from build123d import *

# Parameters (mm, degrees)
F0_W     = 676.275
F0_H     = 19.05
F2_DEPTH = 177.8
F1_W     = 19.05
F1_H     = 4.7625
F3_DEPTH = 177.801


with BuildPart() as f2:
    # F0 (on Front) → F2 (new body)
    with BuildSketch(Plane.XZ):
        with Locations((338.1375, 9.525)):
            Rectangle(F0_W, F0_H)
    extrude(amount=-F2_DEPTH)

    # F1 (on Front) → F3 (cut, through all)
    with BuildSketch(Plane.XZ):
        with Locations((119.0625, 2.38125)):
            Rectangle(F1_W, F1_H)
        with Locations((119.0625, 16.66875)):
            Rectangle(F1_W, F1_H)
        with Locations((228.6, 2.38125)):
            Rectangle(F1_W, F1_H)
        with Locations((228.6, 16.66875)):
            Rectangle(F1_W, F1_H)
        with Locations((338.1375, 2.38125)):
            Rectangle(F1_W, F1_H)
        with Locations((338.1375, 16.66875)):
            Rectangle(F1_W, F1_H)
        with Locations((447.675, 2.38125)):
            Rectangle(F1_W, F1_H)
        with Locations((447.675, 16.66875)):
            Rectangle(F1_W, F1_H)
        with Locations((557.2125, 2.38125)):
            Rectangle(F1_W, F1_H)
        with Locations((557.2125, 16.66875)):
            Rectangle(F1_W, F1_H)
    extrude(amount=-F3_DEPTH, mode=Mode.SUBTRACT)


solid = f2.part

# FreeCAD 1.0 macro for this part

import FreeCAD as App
import Part
import Sketcher
Q = App.Units.Quantity


def add_polygon(sketch, points):
    """Adds a closed chain of lines whose ends are joined by coincident constraints."""
    first, n = sketch.GeometryCount, len(points)
    for a, b in zip(points, points[1:] + points[:1]):
        sketch.addGeometry(Part.LineSegment(App.Vector(*a, 0), App.Vector(*b, 0)), False)
    for i in range(n):
        sketch.addConstraint(Sketcher.Constraint("Coincident", first + i, 2, first + (i + 1) % n, 1))

doc = App.newDocument("Part")
body = doc.addObject("PartDesign::Body", "Body")

sketch1 = doc.addObject("Sketcher::SketchObject", "Sketch")
body.addObject(sketch1)
sketch1.AttachmentSupport = (doc.XZ_Plane, [""])
sketch1.MapMode = "FlatFace"
add_polygon(sketch1, [(0, 19), (0, 0), (676, 0), (676, 19)])
sketch1.addConstraint(Sketcher.Constraint("Vertical", 0))
sketch1.addConstraint(Sketcher.Constraint("Horizontal", 1))
sketch1.addConstraint(Sketcher.Constraint("Vertical", 2))
sketch1.addConstraint(Sketcher.Constraint("Horizontal", 3))
sketch1.addConstraint(Sketcher.Constraint("Coincident", 0, 2, -1, 1))
sketch1.addConstraint(Sketcher.Constraint("DistanceY", 0, 2, 0, 1, Q("0.75 in")))
sketch1.addConstraint(Sketcher.Constraint("DistanceX", 1, 1, 1, 2, Q("26.625 in")))
pad1 = doc.addObject("PartDesign::Pad", "Pad")
body.addObject(pad1)
pad1.Profile = sketch1
pad1.Length = Q("7 in")
pad1.Reversed = True

sketch2 = doc.addObject("Sketcher::SketchObject", "Sketch001")
body.addObject(sketch2)
sketch2.AttachmentSupport = (doc.XZ_Plane, [""])
sketch2.MapMode = "FlatFace"
add_polygon(sketch2, [(109.5, 4.8), (109.5, 0), (128.6, 0), (128.6, 4.8)])
add_polygon(sketch2, [(109.5, 19.1), (109.5, 14.3), (128.6, 14.3), (128.6, 19.1)])
add_polygon(sketch2, [(219.1, 4.8), (219.1, 0), (238.1, 0), (238.1, 4.8)])
add_polygon(sketch2, [(219.1, 19.1), (219.1, 14.3), (238.1, 14.3), (238.1, 19.1)])
add_polygon(sketch2, [(328.6, 4.8), (328.6, 0), (347.7, 0), (347.7, 4.8)])
add_polygon(sketch2, [(328.6, 19.1), (328.6, 14.3), (347.7, 14.3), (347.7, 19.1)])
add_polygon(sketch2, [(438.1, 4.8), (438.1, 0), (457.2, 0), (457.2, 4.8)])
add_polygon(sketch2, [(438.1, 19.1), (438.1, 14.3), (457.2, 14.3), (457.2, 19.1)])
add_polygon(sketch2, [(547.7, 4.8), (547.7, 0), (566.7, 0), (566.7, 4.8)])
add_polygon(sketch2, [(547.7, 19.1), (547.7, 14.3), (566.7, 14.3), (566.7, 19.1)])
sketch2.addConstraint(Sketcher.Constraint("Vertical", 0))
sketch2.addConstraint(Sketcher.Constraint("Horizontal", 1))
sketch2.addConstraint(Sketcher.Constraint("Vertical", 2))
sketch2.addConstraint(Sketcher.Constraint("Horizontal", 3))
sketch2.addConstraint(Sketcher.Constraint("Vertical", 4))
sketch2.addConstraint(Sketcher.Constraint("Horizontal", 5))
sketch2.addConstraint(Sketcher.Constraint("Vertical", 6))
sketch2.addConstraint(Sketcher.Constraint("Horizontal", 7))
sketch2.addConstraint(Sketcher.Constraint("Vertical", 8))
sketch2.addConstraint(Sketcher.Constraint("Horizontal", 9))
sketch2.addConstraint(Sketcher.Constraint("Vertical", 10))
sketch2.addConstraint(Sketcher.Constraint("Horizontal", 11))
sketch2.addConstraint(Sketcher.Constraint("Vertical", 12))
sketch2.addConstraint(Sketcher.Constraint("Horizontal", 13))
sketch2.addConstraint(Sketcher.Constraint("Vertical", 14))
sketch2.addConstraint(Sketcher.Constraint("Horizontal", 15))
sketch2.addConstraint(Sketcher.Constraint("Vertical", 16))
sketch2.addConstraint(Sketcher.Constraint("Horizontal", 17))
sketch2.addConstraint(Sketcher.Constraint("Vertical", 18))
sketch2.addConstraint(Sketcher.Constraint("Horizontal", 19))
sketch2.addConstraint(Sketcher.Constraint("Vertical", 20))
sketch2.addConstraint(Sketcher.Constraint("Horizontal", 21))
sketch2.addConstraint(Sketcher.Constraint("Vertical", 22))
sketch2.addConstraint(Sketcher.Constraint("Horizontal", 23))
sketch2.addConstraint(Sketcher.Constraint("Vertical", 24))
sketch2.addConstraint(Sketcher.Constraint("Horizontal", 25))
sketch2.addConstraint(Sketcher.Constraint("Vertical", 26))
sketch2.addConstraint(Sketcher.Constraint("Horizontal", 27))
sketch2.addConstraint(Sketcher.Constraint("Vertical", 28))
sketch2.addConstraint(Sketcher.Constraint("Horizontal", 29))
sketch2.addConstraint(Sketcher.Constraint("Vertical", 30))
sketch2.addConstraint(Sketcher.Constraint("Horizontal", 31))
sketch2.addConstraint(Sketcher.Constraint("Vertical", 32))
sketch2.addConstraint(Sketcher.Constraint("Horizontal", 33))
sketch2.addConstraint(Sketcher.Constraint("Vertical", 34))
sketch2.addConstraint(Sketcher.Constraint("Horizontal", 35))
sketch2.addConstraint(Sketcher.Constraint("Vertical", 36))
sketch2.addConstraint(Sketcher.Constraint("Horizontal", 37))
sketch2.addConstraint(Sketcher.Constraint("Vertical", 38))
sketch2.addConstraint(Sketcher.Constraint("Horizontal", 39))
sketch2.addConstraint(Sketcher.Constraint("PointOnObject", 0, 2, -1))
sketch2.addConstraint(Sketcher.Constraint("PointOnObject", 8, 2, -1))
sketch2.addConstraint(Sketcher.Constraint("PointOnObject", 16, 2, -1))
sketch2.addConstraint(Sketcher.Constraint("PointOnObject", 24, 2, -1))
sketch2.addConstraint(Sketcher.Constraint("PointOnObject", 32, 2, -1))
sketch2.addConstraint(Sketcher.Constraint("Horizontal", 3, 2, 10, 2))
sketch2.addConstraint(Sketcher.Constraint("Horizontal", 5, 2, 12, 2))
sketch2.addConstraint(Sketcher.Constraint("Horizontal", 7, 2, 14, 2))
sketch2.addConstraint(Sketcher.Constraint("Horizontal", 11, 2, 18, 2))
sketch2.addConstraint(Sketcher.Constraint("Horizontal", 13, 2, 20, 2))
sketch2.addConstraint(Sketcher.Constraint("Horizontal", 15, 2, 22, 2))
sketch2.addConstraint(Sketcher.Constraint("Horizontal", 19, 2, 26, 2))
sketch2.addConstraint(Sketcher.Constraint("Horizontal", 21, 2, 28, 2))
sketch2.addConstraint(Sketcher.Constraint("Horizontal", 23, 2, 30, 2))
sketch2.addConstraint(Sketcher.Constraint("Horizontal", 27, 2, 34, 2))
sketch2.addConstraint(Sketcher.Constraint("Horizontal", 29, 2, 36, 2))
sketch2.addConstraint(Sketcher.Constraint("Horizontal", 31, 2, 38, 2))
sketch2.addConstraint(Sketcher.Constraint("Vertical", 3, 2, 4, 2))
sketch2.addConstraint(Sketcher.Constraint("Vertical", 2, 2, 5, 2))
sketch2.addConstraint(Sketcher.Constraint("Vertical", 11, 2, 12, 2))
sketch2.addConstraint(Sketcher.Constraint("Vertical", 10, 2, 13, 2))
sketch2.addConstraint(Sketcher.Constraint("Vertical", 19, 2, 20, 2))
sketch2.addConstraint(Sketcher.Constraint("Vertical", 18, 2, 21, 2))
sketch2.addConstraint(Sketcher.Constraint("Vertical", 27, 2, 28, 2))
sketch2.addConstraint(Sketcher.Constraint("Vertical", 26, 2, 29, 2))
sketch2.addConstraint(Sketcher.Constraint("Vertical", 35, 2, 36, 2))
sketch2.addConstraint(Sketcher.Constraint("Vertical", 34, 2, 37, 2))
sketch2.addConstraint(Sketcher.Constraint("Equal", 7, 9))
sketch2.addConstraint(Sketcher.Constraint("Equal", 15, 17))
sketch2.addConstraint(Sketcher.Constraint("Equal", 23, 25))
sketch2.addConstraint(Sketcher.Constraint("Equal", 31, 33))
sketch2.addConstraint(Sketcher.Constraint("Equal", 2, 4))
sketch2.addConstraint(Sketcher.Constraint("DistanceX", -1, 1, 25, 2, Q("18 in")))
sketch2.addConstraint(Sketcher.Constraint("DistanceX", 1, 1, 1, 2, Q("0.75 in")))
sketch2.addConstraint(Sketcher.Constraint("DistanceY", 0, 2, 0, 1, Q("0.1875 in")))
sketch2.addConstraint(Sketcher.Constraint("DistanceY", -1, 1, 6, 2, Q("0.75 in")))
sketch2.addConstraint(Sketcher.Constraint("DistanceX", -1, 1, 0, 2, Q("4.3125 in")))
sketch2.addConstraint(Sketcher.Constraint("DistanceX", -1, 1, 8, 2, Q("8.625 in")))
sketch2.addConstraint(Sketcher.Constraint("DistanceX", -1, 1, 16, 2, Q("12.9375 in")))
sketch2.addConstraint(Sketcher.Constraint("DistanceX", -1, 1, 32, 2, Q("21.5625 in")))
pocket1 = doc.addObject("PartDesign::Pocket", "Pocket")
body.addObject(pocket1)
pocket1.Profile = sketch2
pocket1.Type = "ThroughAll"

doc.recompute()
